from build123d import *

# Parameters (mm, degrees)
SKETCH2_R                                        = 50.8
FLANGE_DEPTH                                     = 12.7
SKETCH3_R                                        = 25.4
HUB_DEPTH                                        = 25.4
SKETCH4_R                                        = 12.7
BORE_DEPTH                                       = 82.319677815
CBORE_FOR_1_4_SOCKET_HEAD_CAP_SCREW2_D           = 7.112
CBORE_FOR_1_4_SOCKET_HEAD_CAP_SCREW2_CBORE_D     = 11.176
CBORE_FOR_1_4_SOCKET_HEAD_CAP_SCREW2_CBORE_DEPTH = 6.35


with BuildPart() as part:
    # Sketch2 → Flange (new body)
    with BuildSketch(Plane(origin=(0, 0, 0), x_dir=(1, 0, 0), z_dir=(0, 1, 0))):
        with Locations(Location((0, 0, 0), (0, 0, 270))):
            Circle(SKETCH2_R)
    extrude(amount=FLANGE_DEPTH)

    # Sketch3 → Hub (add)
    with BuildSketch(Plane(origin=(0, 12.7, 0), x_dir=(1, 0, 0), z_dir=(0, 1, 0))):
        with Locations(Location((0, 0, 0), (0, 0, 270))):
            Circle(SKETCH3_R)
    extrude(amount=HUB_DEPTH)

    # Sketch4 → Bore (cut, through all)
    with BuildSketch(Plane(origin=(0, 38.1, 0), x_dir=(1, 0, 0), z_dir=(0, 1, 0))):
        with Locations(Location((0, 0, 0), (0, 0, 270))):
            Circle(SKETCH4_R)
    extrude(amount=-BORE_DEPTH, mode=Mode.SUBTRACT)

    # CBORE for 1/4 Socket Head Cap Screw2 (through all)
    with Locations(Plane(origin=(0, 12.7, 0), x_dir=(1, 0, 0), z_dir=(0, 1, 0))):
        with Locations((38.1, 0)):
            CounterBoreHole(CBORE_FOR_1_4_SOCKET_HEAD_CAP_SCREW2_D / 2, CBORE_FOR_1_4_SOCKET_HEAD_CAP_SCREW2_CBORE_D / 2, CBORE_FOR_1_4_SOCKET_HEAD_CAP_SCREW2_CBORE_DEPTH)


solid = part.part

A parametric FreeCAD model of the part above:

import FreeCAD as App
import Part
import Sketcher
Q = App.Units.Quantity

doc = App.newDocument("Part")
body = doc.addObject("PartDesign::Body", "Body")

sketch1 = body.newObject("Sketcher::SketchObject", "Sketch")
sketch1.AttachmentSupport = (doc.getObject("XZ_Plane"), [""])
sketch1.MapMode = "FlatFace"
sketch1.addGeometry(Part.Circle(App.Vector(0, 0, 0), App.Vector(0, 0, 1), 51), False)
sketch1.addConstraint([
    Sketcher.Constraint("Coincident", 0, 3, -1, 1),
    Sketcher.Constraint("Diameter", 0, Q("4 in")),
])
pad1 = body.newObject("PartDesign::Pad", "Pad")
pad1.Profile = sketch1
pad1.Length = Q("0.5 in")
pad1.Reversed = True

sketch2 = body.newObject("Sketcher::SketchObject", "Sketch001")
sketch2.AttachmentSupport = (doc.getObject("XZ_Plane"), [""])
sketch2.MapMode = "FlatFace"
sketch2.AttachmentOffset = App.Placement(App.Vector(0, 0, -0.5 * 25.4), App.Rotation())
sketch2.addGeometry(Part.Circle(App.Vector(0, 0, 0), App.Vector(0, 0, 1), 25), False)
sketch2.addConstraint([
    Sketcher.Constraint("Coincident", 0, 3, -1, 1),
    Sketcher.Constraint("Diameter", 0, Q("2 in")),
])
pad2 = body.newObject("PartDesign::Pad", "Pad001")
pad2.Profile = sketch2
pad2.Length = Q("1 in")
pad2.Reversed = True

sketch3 = body.newObject("Sketcher::SketchObject", "Sketch002")
sketch3.AttachmentSupport = (doc.getObject("XZ_Plane"), [""])
sketch3.MapMode = "FlatFace"
sketch3.AttachmentOffset = App.Placement(App.Vector(0, 0, -1.5 * 25.4), App.Rotation())
sketch3.addGeometry(Part.Circle(App.Vector(0, 0, 0), App.Vector(0, 0, 1), 13), False)
sketch3.addConstraint([
    Sketcher.Constraint("Coincident", 0, 3, -1, 1),
    Sketcher.Constraint("Diameter", 0, Q("1 in")),
])
pocket1 = body.newObject("PartDesign::Pocket", "Pocket")
pocket1.Profile = sketch3
pocket1.Type = "ThroughAll"
pocket1.Reversed = True

sketch4 = body.newObject("Sketcher::SketchObject", "Sketch003")
sketch4.AttachmentSupport = (doc.getObject("XZ_Plane"), [""])
sketch4.MapMode = "FlatFace"
sketch4.AttachmentOffset = App.Placement(App.Vector(0, 0, -0.5 * 25.4), App.Rotation())
sketch4.addGeometry(Part.Circle(App.Vector(38.1, 0, 0), App.Vector(0, 0, 1), 3.6), False)
sketch4.addConstraint([
    Sketcher.Constraint("PointOnObject", 0, 3, -1),
    Sketcher.Constraint("Diameter", 0, Q("0.28 in")),
    Sketcher.Constraint("DistanceX", -1, 1, 0, 3, Q("1.5 in")),
])
doc.recompute()
hole = body.newObject("PartDesign::Hole", "Hole")
hole.Profile = sketch4
hole.ThreadType = "None"
hole.Diameter = Q("0.28 in")
hole.DepthType = "ThroughAll"
hole.HoleCutType = "Counterbore"
hole.HoleCutDiameter = Q("0.44 in")
hole.HoleCutDepth = Q("0.25 in")
hole.Reversed = True

doc.recompute()
